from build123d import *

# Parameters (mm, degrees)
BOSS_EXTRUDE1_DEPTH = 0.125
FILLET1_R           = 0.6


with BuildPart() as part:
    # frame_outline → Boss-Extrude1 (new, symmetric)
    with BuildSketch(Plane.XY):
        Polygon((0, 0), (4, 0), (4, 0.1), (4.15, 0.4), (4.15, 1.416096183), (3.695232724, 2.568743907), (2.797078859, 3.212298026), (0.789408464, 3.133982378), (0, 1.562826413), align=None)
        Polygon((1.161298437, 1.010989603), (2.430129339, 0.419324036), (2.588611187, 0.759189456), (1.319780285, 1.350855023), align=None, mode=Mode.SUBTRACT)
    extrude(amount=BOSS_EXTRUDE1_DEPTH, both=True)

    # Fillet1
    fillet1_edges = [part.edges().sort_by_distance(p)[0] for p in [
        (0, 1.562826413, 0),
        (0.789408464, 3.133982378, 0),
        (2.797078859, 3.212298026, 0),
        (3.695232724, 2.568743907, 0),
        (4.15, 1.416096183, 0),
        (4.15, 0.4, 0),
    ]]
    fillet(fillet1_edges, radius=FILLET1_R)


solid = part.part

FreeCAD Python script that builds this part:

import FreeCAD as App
import Part
import Sketcher

V = App.Vector
Q = App.Units.Quantity


def edges_at(feature, points):
    """Names of the edges that pass closest to the given points."""
    edges = feature.Shape.Edges
    near = lambda p: min(range(len(edges)), key=lambda i: edges[i].distToShape(Part.Vertex(*p))[0])
    return sorted({f"Edge{near(p) + 1}" for p in points})

doc = App.newDocument("Part")
body = doc.addObject("PartDesign::Body", "Body")

# Sketch on XY plane
sketch1 = body.newObject("Sketcher::SketchObject", "Sketch")
sketch1.AttachmentSupport = (doc.getObject("XY_Plane"), [""])
sketch1.MapMode = "FlatFace"
sketch1.addGeometry([
    Part.LineSegment(V(0, 0, 0), V(4, 0, 0)),  # 0
    Part.LineSegment(V(4, 0, 0), V(4, 0.1, 0)),  # 1
    Part.LineSegment(V(4, 0.1, 0), V(4.15, 0.4, 0)),  # 2
    Part.LineSegment(V(4.15, 0.4, 0), V(4.15, 1.42, 0)),  # 3
    Part.LineSegment(V(4.15, 1.42, 0), V(3.7, 2.57, 0)),  # 4
    Part.LineSegment(V(3.7, 2.57, 0), V(2.8, 3.21, 0)),  # 5
    Part.LineSegment(V(2.8, 3.21, 0), V(0.79, 3.13, 0)),  # 6
    Part.LineSegment(V(0.79, 3.13, 0), V(0, 1.56, 0)),  # 7
    Part.LineSegment(V(0, 1.56, 0), V(0, 0, 0)),  # 8
    Part.LineSegment(V(2.43, 0.42, 0), V(1.16, 1.01, 0)),  # 9
    Part.LineSegment(V(1.16, 1.01, 0), V(1.32, 1.35, 0)),  # 10
    Part.LineSegment(V(1.32, 1.35, 0), V(2.59, 0.76, 0)),  # 11
    Part.LineSegment(V(2.59, 0.76, 0), V(2.43, 0.42, 0)),  # 12
], False)
sketch1.addConstraint([
    Sketcher.Constraint("Coincident", 0, 2, 1, 1),
    Sketcher.Constraint("Coincident", 1, 2, 2, 1),
    Sketcher.Constraint("Coincident", 2, 2, 3, 1),
    Sketcher.Constraint("Coincident", 3, 2, 4, 1),
    Sketcher.Constraint("Coincident", 4, 2, 5, 1),
    Sketcher.Constraint("Coincident", 5, 2, 6, 1),
    Sketcher.Constraint("Coincident", 6, 2, 7, 1),
    Sketcher.Constraint("Coincident", 7, 2, 8, 1),
    Sketcher.Constraint("Coincident", 8, 2, 0, 1),
    Sketcher.Constraint("Coincident", 9, 2, 10, 1),
    Sketcher.Constraint("Coincident", 10, 2, 11, 1),
    Sketcher.Constraint("Coincident", 11, 2, 12, 1),
    Sketcher.Constraint("Coincident", 12, 2, 9, 1),
    Sketcher.Constraint("Horizontal", 0),
    Sketcher.Constraint("Vertical", 1),
    Sketcher.Constraint("Vertical", 3),
    Sketcher.Constraint("Vertical", 8),
    Sketcher.Constraint("Coincident", 8, 2, -1, 1),
    Sketcher.Constraint("Perpendicular", 9, 10),
    Sketcher.Constraint("Perpendicular", 10, 11),
    Sketcher.Constraint("Perpendicular", 11, 12),
    Sketcher.Constraint("DistanceX", 0, 1, 0, 2, 4.0),
    Sketcher.Constraint("Angle", 9, Q("155 deg")),
    Sketcher.Constraint("DistanceY", 1, 1, 1, 2, 0.1),
    Sketcher.Constraint("Distance", 9, 1.4),
    Sketcher.Constraint("DistanceY", -1, 1, 2, 2, 0.4),
    Sketcher.Constraint("DistanceX", -1, 1, 2, 2, 4.15),
    Sketcher.Constraint("Distance", 10, 0.375),
    Sketcher.Constraint("DistanceY", -1, 1, 5, 2, 3.212298),
    Sketcher.Constraint("DistanceX", -1, 1, 9, 2, 1.161298),
    Sketcher.Constraint("DistanceY", 3, 2, 5, 2, 1.796202),
    Sketcher.Constraint("DistanceX", 10, 2, 5, 2, 1.477299),
    Sketcher.Constraint("DistanceY", 8, 2, 8, 1, 1.562826),
    Sketcher.Constraint("DistanceX", -1, 1, 6, 2, 0.789408),
    Sketcher.Constraint("DistanceY", -1, 1, 9, 2, 1.01099),
    Sketcher.Constraint("DistanceY", 4, 2, 6, 2, 0.565238),
    Sketcher.Constraint("Distance", 4, 1.239117),
    Sketcher.Constraint("Distance", 5, 1.104917),
])
pad1 = body.newObject("PartDesign::Pad", "Pad")
pad1.Profile = sketch1
pad1.Length = 0.25
pad1.Midplane = True
doc.recompute()

fillet = body.newObject("PartDesign::Fillet", "Fillet")
fillet.Base = (pad1, edges_at(pad1, [
    (0, 1.563, 0),
    (0.789, 3.134, 0),
    (2.797, 3.212, 0),
    (3.695, 2.569, 0),
    (4.15, 1.416, 0),
    (4.15, 0.4, 0),
]))
fillet.Radius = 0.6

doc.recompute()
